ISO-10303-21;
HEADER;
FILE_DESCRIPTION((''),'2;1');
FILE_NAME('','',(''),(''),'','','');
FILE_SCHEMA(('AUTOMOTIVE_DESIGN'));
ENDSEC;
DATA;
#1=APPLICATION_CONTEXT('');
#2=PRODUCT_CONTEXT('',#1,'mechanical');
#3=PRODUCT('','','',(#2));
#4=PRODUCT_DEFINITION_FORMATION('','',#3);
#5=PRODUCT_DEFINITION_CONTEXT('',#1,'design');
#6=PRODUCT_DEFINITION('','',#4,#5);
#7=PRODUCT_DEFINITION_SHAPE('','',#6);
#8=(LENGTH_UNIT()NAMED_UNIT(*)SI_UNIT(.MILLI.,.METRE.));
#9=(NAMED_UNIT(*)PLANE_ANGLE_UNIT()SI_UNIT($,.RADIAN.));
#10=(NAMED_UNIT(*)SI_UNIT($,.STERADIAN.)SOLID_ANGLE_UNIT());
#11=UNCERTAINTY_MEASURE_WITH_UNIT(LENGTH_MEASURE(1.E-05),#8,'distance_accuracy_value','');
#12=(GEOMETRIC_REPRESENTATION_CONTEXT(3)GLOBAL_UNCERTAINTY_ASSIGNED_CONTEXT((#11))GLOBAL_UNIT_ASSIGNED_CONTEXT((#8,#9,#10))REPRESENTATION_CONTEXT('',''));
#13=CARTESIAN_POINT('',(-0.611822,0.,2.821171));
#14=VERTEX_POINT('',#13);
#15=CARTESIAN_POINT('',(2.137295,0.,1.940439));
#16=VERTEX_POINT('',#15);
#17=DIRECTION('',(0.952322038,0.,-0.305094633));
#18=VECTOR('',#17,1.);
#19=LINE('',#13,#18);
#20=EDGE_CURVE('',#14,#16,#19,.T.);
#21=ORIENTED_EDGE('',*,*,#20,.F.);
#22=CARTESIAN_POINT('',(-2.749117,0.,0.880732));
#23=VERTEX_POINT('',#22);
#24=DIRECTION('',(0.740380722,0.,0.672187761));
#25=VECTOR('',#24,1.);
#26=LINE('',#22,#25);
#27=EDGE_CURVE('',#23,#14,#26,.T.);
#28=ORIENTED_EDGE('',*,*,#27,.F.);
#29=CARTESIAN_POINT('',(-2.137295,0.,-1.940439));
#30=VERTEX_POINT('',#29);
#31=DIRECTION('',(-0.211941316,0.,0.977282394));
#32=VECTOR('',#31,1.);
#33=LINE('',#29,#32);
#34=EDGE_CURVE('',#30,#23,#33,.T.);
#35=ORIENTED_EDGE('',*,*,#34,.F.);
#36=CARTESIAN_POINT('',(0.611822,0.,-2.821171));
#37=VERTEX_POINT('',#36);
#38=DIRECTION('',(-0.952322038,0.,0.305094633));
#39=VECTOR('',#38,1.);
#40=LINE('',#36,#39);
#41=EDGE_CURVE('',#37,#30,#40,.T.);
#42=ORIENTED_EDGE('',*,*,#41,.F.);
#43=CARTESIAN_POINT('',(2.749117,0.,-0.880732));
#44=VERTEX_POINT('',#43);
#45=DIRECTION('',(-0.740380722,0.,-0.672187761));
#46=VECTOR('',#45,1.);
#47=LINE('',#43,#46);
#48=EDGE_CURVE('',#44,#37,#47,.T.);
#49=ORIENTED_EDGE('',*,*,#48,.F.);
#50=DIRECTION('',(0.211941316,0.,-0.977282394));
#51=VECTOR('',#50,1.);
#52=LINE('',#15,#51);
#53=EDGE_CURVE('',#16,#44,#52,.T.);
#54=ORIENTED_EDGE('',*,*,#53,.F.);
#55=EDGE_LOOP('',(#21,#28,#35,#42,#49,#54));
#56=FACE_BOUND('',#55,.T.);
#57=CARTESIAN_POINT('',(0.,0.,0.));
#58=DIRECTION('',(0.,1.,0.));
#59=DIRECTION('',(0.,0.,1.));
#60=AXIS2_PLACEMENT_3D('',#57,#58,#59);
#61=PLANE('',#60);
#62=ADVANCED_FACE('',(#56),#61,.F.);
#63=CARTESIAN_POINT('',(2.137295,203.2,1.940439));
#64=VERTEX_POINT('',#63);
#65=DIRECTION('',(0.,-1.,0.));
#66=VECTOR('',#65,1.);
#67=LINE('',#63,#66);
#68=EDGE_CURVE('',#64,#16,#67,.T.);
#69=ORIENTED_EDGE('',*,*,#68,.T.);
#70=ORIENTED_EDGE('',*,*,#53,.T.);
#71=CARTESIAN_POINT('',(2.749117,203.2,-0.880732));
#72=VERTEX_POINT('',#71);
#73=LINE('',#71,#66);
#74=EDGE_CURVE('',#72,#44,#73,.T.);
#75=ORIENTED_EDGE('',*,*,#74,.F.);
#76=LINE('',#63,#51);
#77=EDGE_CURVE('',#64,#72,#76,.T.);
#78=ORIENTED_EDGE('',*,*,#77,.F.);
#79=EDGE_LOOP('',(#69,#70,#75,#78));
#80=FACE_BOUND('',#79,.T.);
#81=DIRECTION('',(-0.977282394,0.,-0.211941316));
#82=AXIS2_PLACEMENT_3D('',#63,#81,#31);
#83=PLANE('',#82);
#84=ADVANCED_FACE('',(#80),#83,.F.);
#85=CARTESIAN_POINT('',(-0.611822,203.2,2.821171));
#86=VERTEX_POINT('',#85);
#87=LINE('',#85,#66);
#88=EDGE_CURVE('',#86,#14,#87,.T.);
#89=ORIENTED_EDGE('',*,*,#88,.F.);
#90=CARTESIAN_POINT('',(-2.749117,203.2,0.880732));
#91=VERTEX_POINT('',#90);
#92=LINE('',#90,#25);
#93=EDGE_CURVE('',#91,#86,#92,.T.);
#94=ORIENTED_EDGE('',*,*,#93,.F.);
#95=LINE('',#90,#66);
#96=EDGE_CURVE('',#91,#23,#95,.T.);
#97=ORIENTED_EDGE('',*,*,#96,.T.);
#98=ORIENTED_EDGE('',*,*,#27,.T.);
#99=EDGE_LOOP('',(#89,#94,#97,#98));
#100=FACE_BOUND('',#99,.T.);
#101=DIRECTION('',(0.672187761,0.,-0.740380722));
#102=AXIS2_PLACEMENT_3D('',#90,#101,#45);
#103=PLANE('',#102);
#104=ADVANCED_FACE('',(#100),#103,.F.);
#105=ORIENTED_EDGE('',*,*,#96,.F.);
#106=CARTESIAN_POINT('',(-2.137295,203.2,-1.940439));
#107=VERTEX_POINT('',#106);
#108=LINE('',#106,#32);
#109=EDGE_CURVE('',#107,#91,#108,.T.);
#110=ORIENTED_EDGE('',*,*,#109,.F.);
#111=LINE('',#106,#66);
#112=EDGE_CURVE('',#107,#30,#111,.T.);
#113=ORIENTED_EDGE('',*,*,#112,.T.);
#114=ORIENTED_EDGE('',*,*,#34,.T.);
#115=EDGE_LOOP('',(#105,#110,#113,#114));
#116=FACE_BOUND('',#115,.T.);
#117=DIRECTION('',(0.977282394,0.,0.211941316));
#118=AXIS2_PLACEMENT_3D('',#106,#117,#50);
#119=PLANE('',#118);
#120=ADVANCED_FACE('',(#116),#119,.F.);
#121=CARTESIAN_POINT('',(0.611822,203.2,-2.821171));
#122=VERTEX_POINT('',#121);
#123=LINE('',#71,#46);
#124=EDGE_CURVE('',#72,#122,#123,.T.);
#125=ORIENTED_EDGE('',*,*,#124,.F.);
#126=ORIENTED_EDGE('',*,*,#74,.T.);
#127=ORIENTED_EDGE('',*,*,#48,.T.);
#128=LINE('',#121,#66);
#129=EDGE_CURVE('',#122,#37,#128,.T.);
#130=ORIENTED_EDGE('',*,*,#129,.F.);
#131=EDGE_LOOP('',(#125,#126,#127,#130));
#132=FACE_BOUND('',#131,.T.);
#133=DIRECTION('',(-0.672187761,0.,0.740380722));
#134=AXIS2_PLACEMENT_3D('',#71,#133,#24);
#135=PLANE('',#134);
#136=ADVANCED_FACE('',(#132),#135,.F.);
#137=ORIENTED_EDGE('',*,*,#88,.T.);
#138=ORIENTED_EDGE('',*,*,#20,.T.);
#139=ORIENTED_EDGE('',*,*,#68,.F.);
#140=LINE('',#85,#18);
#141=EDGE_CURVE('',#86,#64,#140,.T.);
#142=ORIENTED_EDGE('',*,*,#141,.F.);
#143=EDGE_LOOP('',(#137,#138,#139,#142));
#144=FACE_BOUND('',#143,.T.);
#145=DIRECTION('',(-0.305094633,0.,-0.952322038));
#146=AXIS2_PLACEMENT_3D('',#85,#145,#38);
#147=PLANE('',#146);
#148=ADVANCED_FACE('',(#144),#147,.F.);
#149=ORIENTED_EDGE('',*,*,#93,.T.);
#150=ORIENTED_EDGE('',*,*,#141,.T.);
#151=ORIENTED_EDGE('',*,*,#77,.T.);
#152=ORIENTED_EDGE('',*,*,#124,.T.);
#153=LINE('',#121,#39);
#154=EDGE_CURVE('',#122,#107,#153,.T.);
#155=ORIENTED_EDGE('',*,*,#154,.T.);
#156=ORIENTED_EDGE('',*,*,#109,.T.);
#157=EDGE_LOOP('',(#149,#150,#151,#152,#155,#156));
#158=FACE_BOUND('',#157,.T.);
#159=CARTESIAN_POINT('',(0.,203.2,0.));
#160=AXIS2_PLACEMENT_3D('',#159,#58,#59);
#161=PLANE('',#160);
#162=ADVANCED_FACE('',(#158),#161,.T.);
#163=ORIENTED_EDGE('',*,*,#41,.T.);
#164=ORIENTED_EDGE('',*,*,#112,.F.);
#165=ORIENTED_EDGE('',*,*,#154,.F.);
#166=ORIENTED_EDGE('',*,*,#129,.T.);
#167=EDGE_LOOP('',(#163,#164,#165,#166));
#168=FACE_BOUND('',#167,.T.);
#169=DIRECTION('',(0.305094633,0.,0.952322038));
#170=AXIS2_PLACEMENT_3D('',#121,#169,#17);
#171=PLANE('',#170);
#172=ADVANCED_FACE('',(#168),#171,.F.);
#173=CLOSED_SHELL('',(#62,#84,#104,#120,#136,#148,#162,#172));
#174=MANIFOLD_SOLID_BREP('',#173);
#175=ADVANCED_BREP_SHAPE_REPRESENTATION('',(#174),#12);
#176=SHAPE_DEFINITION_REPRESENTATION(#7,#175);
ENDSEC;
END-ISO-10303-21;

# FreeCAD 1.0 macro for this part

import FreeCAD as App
import Part
import Sketcher
Q = App.Units.Quantity


def add_polygon(sketch, points):
    """Adds a closed chain of lines whose ends are joined by coincident constraints."""
    first, n = sketch.GeometryCount, len(points)
    for a, b in zip(points, points[1:] + points[:1]):
        sketch.addGeometry(Part.LineSegment(App.Vector(*a, 0), App.Vector(*b, 0)), False)
    for i in range(n):
        sketch.addConstraint(Sketcher.Constraint("Coincident", first + i, 2, first + (i + 1) % n, 1))

doc = App.newDocument("Part")
params = doc.addObject("Spreadsheet::Sheet", "Params")
for row, (alias, value) in enumerate([
    ("pad1_length", "8 in"),
], start=1):
    params.set(f"A{row}", alias)
    params.set(f"B{row}", "=" + value)
    params.setAlias(f"B{row}", alias)

body = doc.addObject("PartDesign::Body", "Body")

# Sketch on XZ plane
sketch1 = body.newObject("Sketcher::SketchObject", "Sketch")
sketch1.AttachmentSupport = (doc.getObject("XZ_Plane"), [""])
sketch1.MapMode = "FlatFace"
add_polygon(sketch1, [(2.1, 1.9), (2.7, -0.9), (0.6, -2.8), (-2.1, -1.9), (-2.7, 0.9), (-0.6, 2.8)])  # lines 0-5
sketch1.addConstraint([
    Sketcher.Constraint("Symmetric", 0, 2, 3, 2, -1, 1),
    Sketcher.Constraint("Symmetric", 1, 2, 4, 2, -1, 1),
    Sketcher.Constraint("Symmetric", 2, 2, 5, 2, -1, 1),
    Sketcher.Constraint("Equal", 0, 1),
    Sketcher.Constraint("Equal", 1, 2),
    Sketcher.Constraint("Distance", 0, Q("2.886751 mm")),
    Sketcher.Constraint("DistanceX", -1, 1, 1, 2, Q("0.611822 mm")),
    Sketcher.Constraint("DistanceY", 1, 2, -1, 1, Q("2.821171 mm")),
    Sketcher.Constraint("DistanceY", 2, 2, -1, 1, Q("1.940439 mm")),
])
pad1 = body.newObject("PartDesign::Pad", "Pad")
pad1.Profile = sketch1
pad1.setExpression("Length", "Params.pad1_length")
pad1.Reversed = True

doc.recompute()
